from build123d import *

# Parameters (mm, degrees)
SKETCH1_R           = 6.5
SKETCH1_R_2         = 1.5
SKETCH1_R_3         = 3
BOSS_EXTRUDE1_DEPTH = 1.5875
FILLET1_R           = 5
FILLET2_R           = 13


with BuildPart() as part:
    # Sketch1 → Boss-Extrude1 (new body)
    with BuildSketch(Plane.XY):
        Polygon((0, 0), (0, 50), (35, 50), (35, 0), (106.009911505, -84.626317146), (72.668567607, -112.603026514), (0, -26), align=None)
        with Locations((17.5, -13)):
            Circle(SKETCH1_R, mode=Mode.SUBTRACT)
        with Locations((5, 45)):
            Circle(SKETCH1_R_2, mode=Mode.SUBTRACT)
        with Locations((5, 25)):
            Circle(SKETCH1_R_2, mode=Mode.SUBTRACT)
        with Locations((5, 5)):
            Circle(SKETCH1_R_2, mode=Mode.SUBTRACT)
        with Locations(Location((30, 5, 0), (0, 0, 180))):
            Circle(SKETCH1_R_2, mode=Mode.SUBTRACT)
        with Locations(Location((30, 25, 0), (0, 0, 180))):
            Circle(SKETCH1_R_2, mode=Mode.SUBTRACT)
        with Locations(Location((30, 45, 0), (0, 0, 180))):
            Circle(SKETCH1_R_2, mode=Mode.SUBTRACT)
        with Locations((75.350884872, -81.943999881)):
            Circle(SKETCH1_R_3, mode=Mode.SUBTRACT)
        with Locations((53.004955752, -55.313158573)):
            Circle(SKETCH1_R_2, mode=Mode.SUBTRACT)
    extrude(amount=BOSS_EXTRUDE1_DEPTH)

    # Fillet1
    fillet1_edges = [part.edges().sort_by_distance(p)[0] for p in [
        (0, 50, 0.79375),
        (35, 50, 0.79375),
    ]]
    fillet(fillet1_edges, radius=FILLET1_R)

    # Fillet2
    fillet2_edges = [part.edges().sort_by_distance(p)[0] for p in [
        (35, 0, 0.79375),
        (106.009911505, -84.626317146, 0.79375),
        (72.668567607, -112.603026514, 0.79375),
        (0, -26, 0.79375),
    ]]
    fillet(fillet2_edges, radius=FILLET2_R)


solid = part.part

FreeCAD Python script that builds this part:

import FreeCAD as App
import Part
import Sketcher
Q = App.Units.Quantity


def edges_at(feature, points):
    """Names of the edges that pass closest to the given points."""
    edges = feature.Shape.Edges
    near = lambda p: min(range(len(edges)), key=lambda i: edges[i].distToShape(Part.Vertex(*p))[0])
    return sorted({f"Edge{near(p) + 1}" for p in points})

doc = App.newDocument("Part")
body = doc.addObject("PartDesign::Body", "Body")

# Sketch on XY plane
sketch1 = body.newObject("Sketcher::SketchObject", "Sketch")
sketch1.AttachmentSupport = (doc.getObject("XY_Plane"), [""])
sketch1.MapMode = "FlatFace"
sketch1.addGeometry(Part.LineSegment(App.Vector(0, 50, 0), App.Vector(0, -26, 0)), False)
sketch1.addGeometry(Part.LineSegment(App.Vector(0, -26, 0), App.Vector(72.668568, -112.603027, 0)), False)
sketch1.addGeometry(Part.LineSegment(App.Vector(72.668568, -112.603027, 0), App.Vector(106.009912, -84.626317, 0)), False)
sketch1.addGeometry(Part.LineSegment(App.Vector(106.009912, -84.626317, 0), App.Vector(35, 0, 0)), False)
sketch1.addGeometry(Part.LineSegment(App.Vector(35, 0, 0), App.Vector(35, 50, 0)), False)
sketch1.addGeometry(Part.LineSegment(App.Vector(35, 50, 0), App.Vector(0, 50, 0)), False)
sketch1.addGeometry(Part.Circle(App.Vector(75.350885, -81.944, 0), App.Vector(0, 0, 1), 3), False)
sketch1.addGeometry(Part.Circle(App.Vector(53.004956, -55.313159, 0), App.Vector(0, 0, 1), 1.5), False)
sketch1.addGeometry(Part.Circle(App.Vector(30, 5, 0), App.Vector(0, 0, 1), 1.5), False)
sketch1.addGeometry(Part.Circle(App.Vector(17.5, -13, 0), App.Vector(0, 0, 1), 6.5), False)
sketch1.addGeometry(Part.Circle(App.Vector(5, 5, 0), App.Vector(0, 0, 1), 1.5), False)
sketch1.addGeometry(Part.Circle(App.Vector(30, 25, 0), App.Vector(0, 0, 1), 1.5), False)
sketch1.addGeometry(Part.Circle(App.Vector(30, 45, 0), App.Vector(0, 0, 1), 1.5), False)
sketch1.addGeometry(Part.Circle(App.Vector(5, 25, 0), App.Vector(0, 0, 1), 1.5), False)
sketch1.addGeometry(Part.Circle(App.Vector(5, 45, 0), App.Vector(0, 0, 1), 1.5), False)
sketch1.addConstraint(Sketcher.Constraint("Coincident", 0, 2, 1, 1))
sketch1.addConstraint(Sketcher.Constraint("Coincident", 1, 2, 2, 1))
sketch1.addConstraint(Sketcher.Constraint("Coincident", 2, 2, 3, 1))
sketch1.addConstraint(Sketcher.Constraint("Coincident", 3, 2, 4, 1))
sketch1.addConstraint(Sketcher.Constraint("Coincident", 4, 2, 5, 1))
sketch1.addConstraint(Sketcher.Constraint("Coincident", 5, 2, 0, 1))
sketch1.addConstraint(Sketcher.Constraint("Vertical", 0))
sketch1.addConstraint(Sketcher.Constraint("Vertical", 4))
sketch1.addConstraint(Sketcher.Constraint("Horizontal", 5))
sketch1.addConstraint(Sketcher.Constraint("Equal", 7, 8))
sketch1.addConstraint(Sketcher.Constraint("Equal", 8, 10))
sketch1.addConstraint(Sketcher.Constraint("Equal", 10, 11))
sketch1.addConstraint(Sketcher.Constraint("Equal", 11, 12))
sketch1.addConstraint(Sketcher.Constraint("Equal", 12, 13))
sketch1.addConstraint(Sketcher.Constraint("Equal", 13, 14))
sketch1.addConstraint(Sketcher.Constraint("PointOnObject", 0, 2, -2))
sketch1.addConstraint(Sketcher.Constraint("PointOnObject", 3, 2, -1))
sketch1.addConstraint(Sketcher.Constraint("Perpendicular", 1, 2))
sketch1.addConstraint(Sketcher.Constraint("Perpendicular", 2, 3))
sketch1.addConstraint(Sketcher.Constraint("Horizontal", 8, 3, 10, 3))
sketch1.addConstraint(Sketcher.Constraint("Horizontal", 11, 3, 13, 3))
sketch1.addConstraint(Sketcher.Constraint("Horizontal", 12, 3, 14, 3))
sketch1.addConstraint(Sketcher.Constraint("Vertical", 8, 3, 11, 3))
sketch1.addConstraint(Sketcher.Constraint("Vertical", 11, 3, 12, 3))
sketch1.addConstraint(Sketcher.Constraint("Vertical", 10, 3, 13, 3))
sketch1.addConstraint(Sketcher.Constraint("Vertical", 13, 3, 14, 3))
sketch1.addConstraint(Sketcher.Constraint("Diameter", 6, Q("6 mm")))
sketch1.addConstraint(Sketcher.Constraint("Diameter", 7, Q("3 mm")))
sketch1.addConstraint(Sketcher.Constraint("Diameter", 9, Q("13 mm")))
sketch1.addConstraint(Sketcher.Constraint("DistanceX", 5, 2, 5, 1, Q("35 mm")))
sketch1.addConstraint(Sketcher.Constraint("DistanceY", 0, 2, 0, 1, Q("76 mm")))
sketch1.addConstraint(Sketcher.Constraint("DistanceY", 4, 1, 4, 2, Q("50 mm")))
sketch1.addConstraint(Sketcher.Constraint("Angle", 1, Q("-50 deg")))
sketch1.addConstraint(Sketcher.Constraint("DistanceX", -1, 1, 8, 3, Q("30 mm")))
sketch1.addConstraint(Sketcher.Constraint("DistanceY", -1, 1, 8, 3, Q("5 mm")))
sketch1.addConstraint(Sketcher.Constraint("DistanceY", 9, 3, -1, 1, Q("13 mm")))
sketch1.addConstraint(Sketcher.Constraint("DistanceX", -1, 1, 10, 3, Q("5 mm")))
sketch1.addConstraint(Sketcher.Constraint("DistanceY", -1, 1, 11, 3, Q("25 mm")))
sketch1.addConstraint(Sketcher.Constraint("DistanceY", -1, 1, 12, 3, Q("45 mm")))
sketch1.addConstraint(Sketcher.Constraint("DistanceX", -1, 1, 9, 3, Q("17.5 mm")))
sketch1.addConstraint(Sketcher.Constraint("DistanceY", 6, 3, -1, 1, Q("81.944 mm")))
sketch1.addConstraint(Sketcher.Constraint("Distance", 3, Q("110.471811 mm")))
sketch1.addConstraint(Sketcher.Constraint("DistanceY", 7, 3, -1, 1, Q("55.313159 mm")))
sketch1.addConstraint(Sketcher.Constraint("DistanceX", 7, 3, 6, 3, Q("22.345929 mm")))
sketch1.addConstraint(Sketcher.Constraint("DistanceX", 7, 3, 1, 2, Q("19.663612 mm")))
pad1 = body.newObject("PartDesign::Pad", "Pad")
pad1.Profile = sketch1
pad1.Length = 1.5875
doc.recompute()

fillet = body.newObject("PartDesign::Fillet", "Fillet")
fillet.Base = (pad1, edges_at(pad1, [(0, 50, 0.794), (35, 50, 0.794)]))
fillet.Radius = 5
doc.recompute()

fillet2 = body.newObject("PartDesign::Fillet", "Fillet001")
fillet2.Base = (fillet, edges_at(fillet, [
    (35, 0, 0.794),
    (106.01, -84.626, 0.794),
    (72.669, -112.603, 0.794),
    (0, -26, 0.794),
]))
fillet2.Radius = 13

doc.recompute()
